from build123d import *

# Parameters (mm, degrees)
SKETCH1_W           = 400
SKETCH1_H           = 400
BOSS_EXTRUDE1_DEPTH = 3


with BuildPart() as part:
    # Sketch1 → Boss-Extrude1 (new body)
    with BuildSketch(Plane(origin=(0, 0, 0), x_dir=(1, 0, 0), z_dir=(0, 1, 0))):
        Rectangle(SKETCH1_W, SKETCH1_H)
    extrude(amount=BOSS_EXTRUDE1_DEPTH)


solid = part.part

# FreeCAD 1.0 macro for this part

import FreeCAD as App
import Part
import Sketcher
from FreeCAD import Vector

doc = App.newDocument("Part")
body = doc.addObject("PartDesign::Body", "Body")

# Sketch on XZ plane
sketch1 = doc.addObject("Sketcher::SketchObject", "Sketch")
body.addObject(sketch1)
sketch1.AttachmentSupport = (doc.XZ_Plane, [""])
sketch1.MapMode = "FlatFace"
sketch1.addGeometry(Part.LineSegment(Vector(-200, -200, 0), Vector(-200, 200, 0)), False)
sketch1.addGeometry(Part.LineSegment(Vector(-200, 200, 0), Vector(200, 200, 0)), False)
sketch1.addGeometry(Part.LineSegment(Vector(200, 200, 0), Vector(200, -200, 0)), False)
sketch1.addGeometry(Part.LineSegment(Vector(200, -200, 0), Vector(-200, -200, 0)), False)
sketch1.addConstraint(Sketcher.Constraint("Coincident", 0, 2, 1, 1))
sketch1.addConstraint(Sketcher.Constraint("Coincident", 1, 2, 2, 1))
sketch1.addConstraint(Sketcher.Constraint("Coincident", 2, 2, 3, 1))
sketch1.addConstraint(Sketcher.Constraint("Coincident", 3, 2, 0, 1))
sketch1.addConstraint(Sketcher.Constraint("Vertical", 0))
sketch1.addConstraint(Sketcher.Constraint("Horizontal", 1))
sketch1.addConstraint(Sketcher.Constraint("Vertical", 2))
sketch1.addConstraint(Sketcher.Constraint("Horizontal", 3))
sketch1.addConstraint(Sketcher.Constraint("Symmetric", 0, 2, 2, 2, -1, 1))
sketch1.addConstraint(Sketcher.Constraint("Equal", 3, 0))
sketch1.addConstraint(Sketcher.Constraint("DistanceX", 1, 1, 1, 2, 400.0))
pad1 = doc.addObject("PartDesign::Pad", "Pad")
body.addObject(pad1)
pad1.Profile = sketch1
pad1.Length = 3
pad1.Reversed = True

doc.recompute()
